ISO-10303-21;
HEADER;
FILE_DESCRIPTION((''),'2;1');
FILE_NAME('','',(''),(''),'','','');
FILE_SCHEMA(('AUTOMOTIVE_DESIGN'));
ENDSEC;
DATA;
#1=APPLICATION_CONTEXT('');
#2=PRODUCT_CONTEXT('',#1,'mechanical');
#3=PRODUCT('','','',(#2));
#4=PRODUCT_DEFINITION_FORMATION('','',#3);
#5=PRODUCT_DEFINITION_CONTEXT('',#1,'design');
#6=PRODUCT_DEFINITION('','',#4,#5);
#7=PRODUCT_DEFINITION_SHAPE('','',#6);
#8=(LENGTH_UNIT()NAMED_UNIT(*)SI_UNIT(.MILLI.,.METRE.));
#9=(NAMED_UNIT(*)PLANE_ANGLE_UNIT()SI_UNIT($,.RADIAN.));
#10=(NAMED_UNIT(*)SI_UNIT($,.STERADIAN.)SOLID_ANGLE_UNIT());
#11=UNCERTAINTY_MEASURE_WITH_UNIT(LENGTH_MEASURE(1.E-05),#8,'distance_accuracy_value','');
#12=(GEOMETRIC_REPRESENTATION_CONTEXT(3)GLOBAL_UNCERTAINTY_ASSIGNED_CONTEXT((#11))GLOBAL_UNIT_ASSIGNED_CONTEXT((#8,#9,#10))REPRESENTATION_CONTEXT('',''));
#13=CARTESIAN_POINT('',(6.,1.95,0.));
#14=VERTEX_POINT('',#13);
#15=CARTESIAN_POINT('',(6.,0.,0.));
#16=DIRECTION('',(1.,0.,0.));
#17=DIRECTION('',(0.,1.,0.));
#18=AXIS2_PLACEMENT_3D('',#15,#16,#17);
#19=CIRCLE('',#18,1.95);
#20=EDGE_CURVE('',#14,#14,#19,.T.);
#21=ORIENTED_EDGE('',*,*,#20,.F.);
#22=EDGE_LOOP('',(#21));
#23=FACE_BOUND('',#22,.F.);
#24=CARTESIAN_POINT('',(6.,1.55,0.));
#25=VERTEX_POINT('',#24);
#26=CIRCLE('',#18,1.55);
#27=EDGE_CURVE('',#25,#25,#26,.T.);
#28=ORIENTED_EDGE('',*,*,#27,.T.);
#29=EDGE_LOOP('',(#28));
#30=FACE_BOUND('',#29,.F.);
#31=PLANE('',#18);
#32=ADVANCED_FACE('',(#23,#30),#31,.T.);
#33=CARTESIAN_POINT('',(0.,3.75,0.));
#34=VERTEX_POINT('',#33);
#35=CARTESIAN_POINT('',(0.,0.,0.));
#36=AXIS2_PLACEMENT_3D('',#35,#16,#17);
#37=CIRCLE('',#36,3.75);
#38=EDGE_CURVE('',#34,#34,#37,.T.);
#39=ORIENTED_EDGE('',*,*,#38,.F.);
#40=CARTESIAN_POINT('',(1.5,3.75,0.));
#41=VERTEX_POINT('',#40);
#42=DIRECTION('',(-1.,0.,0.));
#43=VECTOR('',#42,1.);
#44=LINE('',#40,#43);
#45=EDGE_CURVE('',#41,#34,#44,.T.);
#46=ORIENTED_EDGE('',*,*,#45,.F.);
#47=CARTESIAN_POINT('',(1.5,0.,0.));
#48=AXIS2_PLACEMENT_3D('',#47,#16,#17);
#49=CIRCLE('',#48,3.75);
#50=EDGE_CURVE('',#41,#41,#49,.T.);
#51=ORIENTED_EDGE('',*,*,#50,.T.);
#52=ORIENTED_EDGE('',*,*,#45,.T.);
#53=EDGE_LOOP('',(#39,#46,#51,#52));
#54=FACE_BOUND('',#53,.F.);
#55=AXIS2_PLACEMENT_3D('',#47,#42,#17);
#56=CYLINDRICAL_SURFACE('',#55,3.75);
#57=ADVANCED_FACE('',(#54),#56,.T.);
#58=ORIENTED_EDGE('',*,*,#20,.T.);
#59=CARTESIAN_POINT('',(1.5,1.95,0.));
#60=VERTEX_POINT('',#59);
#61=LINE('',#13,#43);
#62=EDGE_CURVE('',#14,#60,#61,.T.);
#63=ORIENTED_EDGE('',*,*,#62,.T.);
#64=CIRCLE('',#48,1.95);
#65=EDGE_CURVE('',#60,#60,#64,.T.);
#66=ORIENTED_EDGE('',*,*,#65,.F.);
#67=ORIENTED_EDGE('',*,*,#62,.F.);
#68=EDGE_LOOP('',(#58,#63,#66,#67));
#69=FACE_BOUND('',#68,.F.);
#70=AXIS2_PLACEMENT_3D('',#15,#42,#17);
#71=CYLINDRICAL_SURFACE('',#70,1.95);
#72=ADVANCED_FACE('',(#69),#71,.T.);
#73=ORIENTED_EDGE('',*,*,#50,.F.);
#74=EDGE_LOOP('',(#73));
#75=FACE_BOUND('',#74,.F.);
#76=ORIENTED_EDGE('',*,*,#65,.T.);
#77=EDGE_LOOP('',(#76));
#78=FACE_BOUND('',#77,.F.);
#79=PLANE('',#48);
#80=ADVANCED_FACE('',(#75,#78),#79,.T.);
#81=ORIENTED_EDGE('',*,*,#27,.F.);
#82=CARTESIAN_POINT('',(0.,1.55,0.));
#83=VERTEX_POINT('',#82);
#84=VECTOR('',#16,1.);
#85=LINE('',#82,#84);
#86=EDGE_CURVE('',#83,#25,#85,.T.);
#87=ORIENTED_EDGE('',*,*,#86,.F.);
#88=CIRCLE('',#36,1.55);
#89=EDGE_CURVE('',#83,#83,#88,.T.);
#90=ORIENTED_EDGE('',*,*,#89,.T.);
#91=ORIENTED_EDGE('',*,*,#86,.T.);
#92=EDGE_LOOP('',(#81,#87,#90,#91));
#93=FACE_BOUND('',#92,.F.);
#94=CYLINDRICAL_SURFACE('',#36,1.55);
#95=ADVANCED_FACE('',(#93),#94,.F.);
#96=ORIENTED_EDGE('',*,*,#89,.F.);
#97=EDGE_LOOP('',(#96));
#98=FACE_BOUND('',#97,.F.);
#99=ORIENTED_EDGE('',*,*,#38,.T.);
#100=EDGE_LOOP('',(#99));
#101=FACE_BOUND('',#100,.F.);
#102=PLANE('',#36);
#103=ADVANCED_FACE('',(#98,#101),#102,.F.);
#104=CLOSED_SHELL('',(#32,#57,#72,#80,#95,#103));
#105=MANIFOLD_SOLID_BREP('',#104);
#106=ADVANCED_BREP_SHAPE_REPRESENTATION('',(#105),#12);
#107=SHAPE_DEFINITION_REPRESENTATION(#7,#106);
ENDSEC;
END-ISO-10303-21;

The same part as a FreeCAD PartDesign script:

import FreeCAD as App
import Part
import Sketcher
from FreeCAD import Vector


def add_polygon(sketch, points):
    """Adds a closed chain of lines whose ends are joined by coincident constraints."""
    first, n = sketch.GeometryCount, len(points)
    for a, b in zip(points, points[1:] + points[:1]):
        sketch.addGeometry(Part.LineSegment(App.Vector(*a, 0), App.Vector(*b, 0)), False)
    for i in range(n):
        sketch.addConstraint(Sketcher.Constraint("Coincident", first + i, 2, first + (i + 1) % n, 1))

doc = App.newDocument("Part")
body = doc.addObject("PartDesign::Body", "Body")

# Sketch on XY plane
sketch1 = doc.addObject("Sketcher::SketchObject", "Sketch")
body.addObject(sketch1)
sketch1.AttachmentSupport = (doc.XY_Plane, [""])
sketch1.MapMode = "FlatFace"
add_polygon(sketch1, [(1.5, 3.75), (0, 3.75), (0, 1.55), (6, 1.55), (6, 1.95), (1.5, 1.95)])  # lines 0-5
sketch1.addConstraint(Sketcher.Constraint("Horizontal", 0))
sketch1.addConstraint(Sketcher.Constraint("Vertical", 1))
sketch1.addConstraint(Sketcher.Constraint("Horizontal", 2))
sketch1.addConstraint(Sketcher.Constraint("Vertical", 3))
sketch1.addConstraint(Sketcher.Constraint("Horizontal", 4))
sketch1.addConstraint(Sketcher.Constraint("Vertical", 5))
sketch1.addConstraint(Sketcher.Constraint("PointOnObject", 0, 2, -2))
sketch1.addConstraint(Sketcher.Constraint("DistanceX", 2, 1, 2, 2, 6.0))
sketch1.addConstraint(Sketcher.Constraint("DistanceX", 4, 2, 4, 1, 4.5))
sketch1.addConstraint(Sketcher.Constraint("DistanceY", -1, 1, 0, 2, 3.75))
sketch1.addConstraint(Sketcher.Constraint("DistanceY", -1, 1, 1, 2, 1.55))
sketch1.addConstraint(Sketcher.Constraint("DistanceY", -1, 1, 3, 2, 1.95))
revolution = doc.addObject("PartDesign::Revolution", "Revolution")
body.addObject(revolution)
revolution.Profile = sketch1
revolution.ReferenceAxis = (sketch1, ["H_Axis"])
revolution.Angle = 360

doc.recompute()
